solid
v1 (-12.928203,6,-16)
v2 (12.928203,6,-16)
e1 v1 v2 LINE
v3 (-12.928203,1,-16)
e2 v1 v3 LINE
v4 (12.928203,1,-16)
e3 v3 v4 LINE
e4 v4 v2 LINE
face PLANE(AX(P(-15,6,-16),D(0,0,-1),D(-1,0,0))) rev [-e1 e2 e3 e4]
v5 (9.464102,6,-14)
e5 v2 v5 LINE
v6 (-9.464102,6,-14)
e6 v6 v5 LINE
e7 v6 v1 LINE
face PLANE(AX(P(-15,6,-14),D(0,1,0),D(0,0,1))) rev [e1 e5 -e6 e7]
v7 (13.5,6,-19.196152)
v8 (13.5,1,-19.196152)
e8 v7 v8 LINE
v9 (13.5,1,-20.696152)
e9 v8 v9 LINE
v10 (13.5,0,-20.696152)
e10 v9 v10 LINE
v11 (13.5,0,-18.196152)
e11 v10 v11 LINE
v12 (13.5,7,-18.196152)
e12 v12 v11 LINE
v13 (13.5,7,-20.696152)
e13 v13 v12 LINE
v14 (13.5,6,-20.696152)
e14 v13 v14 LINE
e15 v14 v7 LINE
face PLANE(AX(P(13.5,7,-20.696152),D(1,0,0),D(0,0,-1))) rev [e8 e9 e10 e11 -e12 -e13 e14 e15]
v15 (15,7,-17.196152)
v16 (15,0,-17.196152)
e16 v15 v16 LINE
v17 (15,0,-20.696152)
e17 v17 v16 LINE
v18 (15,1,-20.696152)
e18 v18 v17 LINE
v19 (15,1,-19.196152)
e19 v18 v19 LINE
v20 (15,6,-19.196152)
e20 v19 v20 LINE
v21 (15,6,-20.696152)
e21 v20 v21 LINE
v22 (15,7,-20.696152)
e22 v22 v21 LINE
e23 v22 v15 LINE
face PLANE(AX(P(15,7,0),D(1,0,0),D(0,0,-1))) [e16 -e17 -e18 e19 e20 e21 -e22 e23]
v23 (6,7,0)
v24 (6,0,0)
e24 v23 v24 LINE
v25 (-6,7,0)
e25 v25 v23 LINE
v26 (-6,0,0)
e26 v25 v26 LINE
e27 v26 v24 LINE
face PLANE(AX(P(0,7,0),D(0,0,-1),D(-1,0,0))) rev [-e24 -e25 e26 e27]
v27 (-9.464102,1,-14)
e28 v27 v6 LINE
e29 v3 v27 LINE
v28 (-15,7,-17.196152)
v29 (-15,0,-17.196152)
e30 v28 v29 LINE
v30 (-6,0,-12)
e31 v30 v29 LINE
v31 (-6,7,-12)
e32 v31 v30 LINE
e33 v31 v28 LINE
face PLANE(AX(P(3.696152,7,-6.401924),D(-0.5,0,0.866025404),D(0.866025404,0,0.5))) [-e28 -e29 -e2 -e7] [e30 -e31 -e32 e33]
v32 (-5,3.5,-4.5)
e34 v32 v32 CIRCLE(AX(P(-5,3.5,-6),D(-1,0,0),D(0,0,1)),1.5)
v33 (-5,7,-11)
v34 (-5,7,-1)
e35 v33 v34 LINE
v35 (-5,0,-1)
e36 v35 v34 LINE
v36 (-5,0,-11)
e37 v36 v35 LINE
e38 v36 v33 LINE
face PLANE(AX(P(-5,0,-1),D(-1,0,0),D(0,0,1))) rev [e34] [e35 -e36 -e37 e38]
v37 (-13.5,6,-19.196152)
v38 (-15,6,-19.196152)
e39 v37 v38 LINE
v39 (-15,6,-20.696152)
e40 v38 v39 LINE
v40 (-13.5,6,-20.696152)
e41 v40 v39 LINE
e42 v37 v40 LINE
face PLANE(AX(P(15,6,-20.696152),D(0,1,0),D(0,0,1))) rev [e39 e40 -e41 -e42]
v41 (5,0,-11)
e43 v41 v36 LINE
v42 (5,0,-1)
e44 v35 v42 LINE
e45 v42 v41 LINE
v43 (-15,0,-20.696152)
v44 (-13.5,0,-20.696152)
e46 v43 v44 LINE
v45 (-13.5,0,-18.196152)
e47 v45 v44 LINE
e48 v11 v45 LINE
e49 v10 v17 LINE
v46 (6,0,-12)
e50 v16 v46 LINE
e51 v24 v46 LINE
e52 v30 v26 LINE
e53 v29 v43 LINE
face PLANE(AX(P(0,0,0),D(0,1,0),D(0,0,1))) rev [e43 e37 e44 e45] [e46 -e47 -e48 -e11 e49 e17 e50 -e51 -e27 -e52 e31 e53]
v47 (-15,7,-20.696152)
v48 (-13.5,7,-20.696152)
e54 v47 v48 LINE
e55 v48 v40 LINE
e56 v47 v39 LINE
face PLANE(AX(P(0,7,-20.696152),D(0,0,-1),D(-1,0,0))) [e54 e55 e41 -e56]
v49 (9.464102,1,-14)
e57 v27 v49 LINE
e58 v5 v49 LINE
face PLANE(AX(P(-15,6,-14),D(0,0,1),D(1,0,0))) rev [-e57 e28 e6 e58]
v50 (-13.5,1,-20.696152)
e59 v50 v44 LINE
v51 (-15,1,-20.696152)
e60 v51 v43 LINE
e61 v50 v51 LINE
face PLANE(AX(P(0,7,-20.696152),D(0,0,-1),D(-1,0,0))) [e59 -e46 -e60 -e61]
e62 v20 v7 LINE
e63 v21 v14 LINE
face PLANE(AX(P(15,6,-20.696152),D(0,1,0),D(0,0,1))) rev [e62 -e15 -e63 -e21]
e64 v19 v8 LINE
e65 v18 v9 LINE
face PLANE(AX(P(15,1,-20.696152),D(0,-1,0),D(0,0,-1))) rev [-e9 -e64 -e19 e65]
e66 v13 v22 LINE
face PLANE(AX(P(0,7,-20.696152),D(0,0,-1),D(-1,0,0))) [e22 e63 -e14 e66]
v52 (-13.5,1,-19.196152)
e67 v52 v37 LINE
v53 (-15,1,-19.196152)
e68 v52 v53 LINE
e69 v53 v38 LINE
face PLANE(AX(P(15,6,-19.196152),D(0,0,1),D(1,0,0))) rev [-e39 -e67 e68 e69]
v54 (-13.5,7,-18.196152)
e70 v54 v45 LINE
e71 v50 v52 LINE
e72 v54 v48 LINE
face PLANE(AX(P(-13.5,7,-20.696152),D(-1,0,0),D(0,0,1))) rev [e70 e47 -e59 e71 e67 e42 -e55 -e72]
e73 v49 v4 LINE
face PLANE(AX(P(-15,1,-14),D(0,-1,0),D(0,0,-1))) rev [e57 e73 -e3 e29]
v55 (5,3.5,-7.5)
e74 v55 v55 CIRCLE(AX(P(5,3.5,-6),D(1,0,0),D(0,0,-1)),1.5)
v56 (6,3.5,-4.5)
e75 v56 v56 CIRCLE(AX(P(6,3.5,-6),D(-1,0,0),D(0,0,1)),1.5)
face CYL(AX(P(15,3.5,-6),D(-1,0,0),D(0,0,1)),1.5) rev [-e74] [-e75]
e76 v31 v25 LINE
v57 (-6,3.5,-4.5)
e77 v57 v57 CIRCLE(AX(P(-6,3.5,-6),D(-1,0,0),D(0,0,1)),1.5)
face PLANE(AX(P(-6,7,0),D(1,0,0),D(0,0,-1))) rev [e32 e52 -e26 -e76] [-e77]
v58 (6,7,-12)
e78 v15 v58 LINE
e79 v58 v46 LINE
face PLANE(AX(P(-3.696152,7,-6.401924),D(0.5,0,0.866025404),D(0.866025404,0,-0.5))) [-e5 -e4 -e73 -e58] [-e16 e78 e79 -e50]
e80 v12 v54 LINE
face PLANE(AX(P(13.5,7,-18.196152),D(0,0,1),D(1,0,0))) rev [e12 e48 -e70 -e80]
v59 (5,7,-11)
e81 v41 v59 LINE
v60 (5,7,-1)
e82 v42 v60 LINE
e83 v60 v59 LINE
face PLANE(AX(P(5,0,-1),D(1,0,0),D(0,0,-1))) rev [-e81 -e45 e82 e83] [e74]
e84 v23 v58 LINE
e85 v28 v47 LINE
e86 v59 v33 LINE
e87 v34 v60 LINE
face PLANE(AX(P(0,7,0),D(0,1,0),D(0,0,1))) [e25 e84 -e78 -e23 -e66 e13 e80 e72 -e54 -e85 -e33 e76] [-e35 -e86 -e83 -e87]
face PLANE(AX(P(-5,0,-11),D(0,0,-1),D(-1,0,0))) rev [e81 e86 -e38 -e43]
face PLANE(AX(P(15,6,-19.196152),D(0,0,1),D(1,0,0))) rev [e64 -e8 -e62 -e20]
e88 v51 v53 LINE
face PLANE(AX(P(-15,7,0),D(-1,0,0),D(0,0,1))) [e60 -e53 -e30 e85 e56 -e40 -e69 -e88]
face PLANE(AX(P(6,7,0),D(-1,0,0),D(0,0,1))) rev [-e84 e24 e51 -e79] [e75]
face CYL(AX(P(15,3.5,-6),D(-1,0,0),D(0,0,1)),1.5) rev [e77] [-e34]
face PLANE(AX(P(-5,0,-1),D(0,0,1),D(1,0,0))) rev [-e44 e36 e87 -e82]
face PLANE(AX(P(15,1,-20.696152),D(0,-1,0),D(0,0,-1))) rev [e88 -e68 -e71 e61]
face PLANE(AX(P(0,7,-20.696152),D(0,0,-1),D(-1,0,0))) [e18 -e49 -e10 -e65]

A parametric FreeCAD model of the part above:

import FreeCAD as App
import Part
import Sketcher
from FreeCAD import Vector
Q = App.Units.Quantity


def add_polygon(sketch, points):
    """Adds a closed chain of lines whose ends are joined by coincident constraints."""
    first, n = sketch.GeometryCount, len(points)
    for a, b in zip(points, points[1:] + points[:1]):
        sketch.addGeometry(Part.LineSegment(App.Vector(*a, 0), App.Vector(*b, 0)), False)
    for i in range(n):
        sketch.addConstraint(Sketcher.Constraint("Coincident", first + i, 2, first + (i + 1) % n, 1))

doc = App.newDocument("Part")
body = doc.addObject("PartDesign::Body", "Body")

sketch1 = body.newObject("Sketcher::SketchObject", "Sketch")
sketch1.AttachmentSupport = (doc.getObject("XZ_Plane"), [""])
sketch1.MapMode = "FlatFace"
add_polygon(sketch1, [(-6, -12), (-6, 0), (6, 0), (6, -12), (15, -17.196152), (15, -20.696152), (-15, -20.696152), (-15, -17.196152)])
sketch1.addConstraint([
    Sketcher.Constraint("Vertical", 0),
    Sketcher.Constraint("Horizontal", 1),
    Sketcher.Constraint("Vertical", 2),
    Sketcher.Constraint("Vertical", 4),
    Sketcher.Constraint("Horizontal", 5),
    Sketcher.Constraint("Vertical", 6),
    Sketcher.Constraint("Symmetric", 0, 2, 1, 2, -1, 1),
    Sketcher.Constraint("Symmetric", 3, 2, 6, 2, -2),
    Sketcher.Constraint("Horizontal", 2, 2, 7, 2),
    Sketcher.Constraint("Equal", 1, 0),
    Sketcher.Constraint("DistanceX", 1, 1, 1, 2, Q("12 mm")),
    Sketcher.Constraint("DistanceX", 5, 2, 5, 1, Q("30 mm")),
    Sketcher.Constraint("Angle", 3, Q("-30 deg")),
    Sketcher.Constraint("DistanceY", 4, 2, 4, 1, Q("3.5 mm")),
])
pad1 = body.newObject("PartDesign::Pad", "Pad")
pad1.Profile = sketch1
pad1.Length = 7
pad1.Reversed = True

sketch2 = body.newObject("Sketcher::SketchObject", "Sketch001")
sketch2.AttachmentSupport = (doc.getObject("XZ_Plane"), [""])
sketch2.MapMode = "FlatFace"
sketch2.AttachmentOffset = App.Placement(Vector(0, 0, -7), App.Rotation())
add_polygon(sketch2, [(-5, -11), (-5, -1), (5, -1), (5, -11)])
sketch2.addConstraint([
    Sketcher.Constraint("Vertical", 0),
    Sketcher.Constraint("Horizontal", 1),
    Sketcher.Constraint("Vertical", 2),
    Sketcher.Constraint("Horizontal", 3),
    Sketcher.Constraint("Equal", 3, 0),
    Sketcher.Constraint("DistanceX", 1, 1, 1, 2, Q("10 mm")),
    Sketcher.Constraint("DistanceX", 0, 2, -1, 1, Q("5 mm")),
    Sketcher.Constraint("DistanceY", 0, 2, -1, 1, Q("1 mm")),
])
pocket1 = body.newObject("PartDesign::Pocket", "Pocket")
pocket1.Profile = sketch2
pocket1.Type = "ThroughAll"
pocket1.Reversed = True

sketch3 = body.newObject("Sketcher::SketchObject", "Sketch002")
sketch3.AttachmentSupport = (doc.getObject("YZ_Plane"), [""])
sketch3.MapMode = "FlatFace"
sketch3.AttachmentOffset = App.Placement(Vector(0, 0, -6), App.Rotation())
sketch3.addGeometry(Part.Circle(Vector(3.5, -6, 0), Vector(0, 0, 1), 1.5), False)
sketch3.addConstraint([
    Sketcher.Constraint("Diameter", 0, Q("3 mm")),
    Sketcher.Constraint("DistanceY", 0, 3, -1, 1, Q("6 mm")),
    Sketcher.Constraint("DistanceX", -1, 1, 0, 3, Q("3.5 mm")),
])
pocket2 = body.newObject("PartDesign::Pocket", "Pocket001")
pocket2.Profile = sketch3
pocket2.Type = "ThroughAll"
pocket2.Reversed = True

sketch4 = body.newObject("Sketcher::SketchObject", "Sketch003")
sketch4.AttachmentSupport = (doc.getObject("XZ_Plane"), [""])
sketch4.MapMode = "FlatFace"
add_polygon(sketch4, [(-13.5, -18.196152), (-13.5, -20.696152), (13.5, -20.696152), (13.5, -18.196152)])
sketch4.addConstraint([
    Sketcher.Constraint("Vertical", 0),
    Sketcher.Constraint("Horizontal", 1),
    Sketcher.Constraint("Vertical", 2),
    Sketcher.Constraint("Horizontal", 3),
    Sketcher.Constraint("DistanceX", 1, 1, 1, 2, Q("27 mm")),
    Sketcher.Constraint("DistanceY", 0, 2, 0, 1, Q("2.5 mm")),
    Sketcher.Constraint("DistanceX", 0, 2, -1, 1, Q("13.5 mm")),
    Sketcher.Constraint("DistanceY", 0, 2, -1, 1, Q("20.696152 mm")),
])
pocket3 = body.newObject("PartDesign::Pocket", "Pocket002")
pocket3.Profile = sketch4
pocket3.Type = "ThroughAll"

sketch5 = body.newObject("Sketcher::SketchObject", "Sketch004")
sketch5.AttachmentSupport = (doc.getObject("YZ_Plane"), [""])
sketch5.MapMode = "FlatFace"
sketch5.AttachmentOffset = App.Placement(Vector(0, 0, 15), App.Rotation())
add_polygon(sketch5, [(6, -14), (1, -14), (1, -16), (6, -16)])
sketch5.addConstraint([
    Sketcher.Constraint("Horizontal", 0),
    Sketcher.Constraint("Vertical", 1),
    Sketcher.Constraint("Horizontal", 2),
    Sketcher.Constraint("Vertical", 3),
    Sketcher.Constraint("DistanceX", 0, 2, 0, 1, Q("5 mm")),
    Sketcher.Constraint("DistanceY", 1, 2, 1, 1, Q("2 mm")),
    Sketcher.Constraint("DistanceX", -1, 1, 0, 2, Q("1 mm")),
    Sketcher.Constraint("DistanceY", 0, 2, -1, 1, Q("14 mm")),
])
pocket4 = body.newObject("PartDesign::Pocket", "Pocket003")
pocket4.Profile = sketch5
pocket4.Type = "ThroughAll"

sketch6 = body.newObject("Sketcher::SketchObject", "Sketch005")
sketch6.AttachmentSupport = (doc.getObject("YZ_Plane"), [""])
sketch6.MapMode = "FlatFace"
sketch6.AttachmentOffset = App.Placement(Vector(0, 0, -15), App.Rotation())
add_polygon(sketch6, [(6, -20.696152), (1, -20.696152), (1, -19.196152), (6, -19.196152)])
sketch6.addConstraint([
    Sketcher.Constraint("Horizontal", 0),
    Sketcher.Constraint("Vertical", 1),
    Sketcher.Constraint("Horizontal", 2),
    Sketcher.Constraint("Vertical", 3),
    Sketcher.Constraint("DistanceX", 0, 2, 0, 1, Q("5 mm")),
    Sketcher.Constraint("DistanceY", 1, 1, 1, 2, Q("1.5 mm")),
    Sketcher.Constraint("DistanceX", -1, 1, 0, 2, Q("1 mm")),
    Sketcher.Constraint("DistanceY", 0, 2, -1, 1, Q("20.696152 mm")),
])
pocket5 = body.newObject("PartDesign::Pocket", "Pocket004")
pocket5.Profile = sketch6
pocket5.Type = "ThroughAll"
pocket5.Reversed = True

doc.recompute()
